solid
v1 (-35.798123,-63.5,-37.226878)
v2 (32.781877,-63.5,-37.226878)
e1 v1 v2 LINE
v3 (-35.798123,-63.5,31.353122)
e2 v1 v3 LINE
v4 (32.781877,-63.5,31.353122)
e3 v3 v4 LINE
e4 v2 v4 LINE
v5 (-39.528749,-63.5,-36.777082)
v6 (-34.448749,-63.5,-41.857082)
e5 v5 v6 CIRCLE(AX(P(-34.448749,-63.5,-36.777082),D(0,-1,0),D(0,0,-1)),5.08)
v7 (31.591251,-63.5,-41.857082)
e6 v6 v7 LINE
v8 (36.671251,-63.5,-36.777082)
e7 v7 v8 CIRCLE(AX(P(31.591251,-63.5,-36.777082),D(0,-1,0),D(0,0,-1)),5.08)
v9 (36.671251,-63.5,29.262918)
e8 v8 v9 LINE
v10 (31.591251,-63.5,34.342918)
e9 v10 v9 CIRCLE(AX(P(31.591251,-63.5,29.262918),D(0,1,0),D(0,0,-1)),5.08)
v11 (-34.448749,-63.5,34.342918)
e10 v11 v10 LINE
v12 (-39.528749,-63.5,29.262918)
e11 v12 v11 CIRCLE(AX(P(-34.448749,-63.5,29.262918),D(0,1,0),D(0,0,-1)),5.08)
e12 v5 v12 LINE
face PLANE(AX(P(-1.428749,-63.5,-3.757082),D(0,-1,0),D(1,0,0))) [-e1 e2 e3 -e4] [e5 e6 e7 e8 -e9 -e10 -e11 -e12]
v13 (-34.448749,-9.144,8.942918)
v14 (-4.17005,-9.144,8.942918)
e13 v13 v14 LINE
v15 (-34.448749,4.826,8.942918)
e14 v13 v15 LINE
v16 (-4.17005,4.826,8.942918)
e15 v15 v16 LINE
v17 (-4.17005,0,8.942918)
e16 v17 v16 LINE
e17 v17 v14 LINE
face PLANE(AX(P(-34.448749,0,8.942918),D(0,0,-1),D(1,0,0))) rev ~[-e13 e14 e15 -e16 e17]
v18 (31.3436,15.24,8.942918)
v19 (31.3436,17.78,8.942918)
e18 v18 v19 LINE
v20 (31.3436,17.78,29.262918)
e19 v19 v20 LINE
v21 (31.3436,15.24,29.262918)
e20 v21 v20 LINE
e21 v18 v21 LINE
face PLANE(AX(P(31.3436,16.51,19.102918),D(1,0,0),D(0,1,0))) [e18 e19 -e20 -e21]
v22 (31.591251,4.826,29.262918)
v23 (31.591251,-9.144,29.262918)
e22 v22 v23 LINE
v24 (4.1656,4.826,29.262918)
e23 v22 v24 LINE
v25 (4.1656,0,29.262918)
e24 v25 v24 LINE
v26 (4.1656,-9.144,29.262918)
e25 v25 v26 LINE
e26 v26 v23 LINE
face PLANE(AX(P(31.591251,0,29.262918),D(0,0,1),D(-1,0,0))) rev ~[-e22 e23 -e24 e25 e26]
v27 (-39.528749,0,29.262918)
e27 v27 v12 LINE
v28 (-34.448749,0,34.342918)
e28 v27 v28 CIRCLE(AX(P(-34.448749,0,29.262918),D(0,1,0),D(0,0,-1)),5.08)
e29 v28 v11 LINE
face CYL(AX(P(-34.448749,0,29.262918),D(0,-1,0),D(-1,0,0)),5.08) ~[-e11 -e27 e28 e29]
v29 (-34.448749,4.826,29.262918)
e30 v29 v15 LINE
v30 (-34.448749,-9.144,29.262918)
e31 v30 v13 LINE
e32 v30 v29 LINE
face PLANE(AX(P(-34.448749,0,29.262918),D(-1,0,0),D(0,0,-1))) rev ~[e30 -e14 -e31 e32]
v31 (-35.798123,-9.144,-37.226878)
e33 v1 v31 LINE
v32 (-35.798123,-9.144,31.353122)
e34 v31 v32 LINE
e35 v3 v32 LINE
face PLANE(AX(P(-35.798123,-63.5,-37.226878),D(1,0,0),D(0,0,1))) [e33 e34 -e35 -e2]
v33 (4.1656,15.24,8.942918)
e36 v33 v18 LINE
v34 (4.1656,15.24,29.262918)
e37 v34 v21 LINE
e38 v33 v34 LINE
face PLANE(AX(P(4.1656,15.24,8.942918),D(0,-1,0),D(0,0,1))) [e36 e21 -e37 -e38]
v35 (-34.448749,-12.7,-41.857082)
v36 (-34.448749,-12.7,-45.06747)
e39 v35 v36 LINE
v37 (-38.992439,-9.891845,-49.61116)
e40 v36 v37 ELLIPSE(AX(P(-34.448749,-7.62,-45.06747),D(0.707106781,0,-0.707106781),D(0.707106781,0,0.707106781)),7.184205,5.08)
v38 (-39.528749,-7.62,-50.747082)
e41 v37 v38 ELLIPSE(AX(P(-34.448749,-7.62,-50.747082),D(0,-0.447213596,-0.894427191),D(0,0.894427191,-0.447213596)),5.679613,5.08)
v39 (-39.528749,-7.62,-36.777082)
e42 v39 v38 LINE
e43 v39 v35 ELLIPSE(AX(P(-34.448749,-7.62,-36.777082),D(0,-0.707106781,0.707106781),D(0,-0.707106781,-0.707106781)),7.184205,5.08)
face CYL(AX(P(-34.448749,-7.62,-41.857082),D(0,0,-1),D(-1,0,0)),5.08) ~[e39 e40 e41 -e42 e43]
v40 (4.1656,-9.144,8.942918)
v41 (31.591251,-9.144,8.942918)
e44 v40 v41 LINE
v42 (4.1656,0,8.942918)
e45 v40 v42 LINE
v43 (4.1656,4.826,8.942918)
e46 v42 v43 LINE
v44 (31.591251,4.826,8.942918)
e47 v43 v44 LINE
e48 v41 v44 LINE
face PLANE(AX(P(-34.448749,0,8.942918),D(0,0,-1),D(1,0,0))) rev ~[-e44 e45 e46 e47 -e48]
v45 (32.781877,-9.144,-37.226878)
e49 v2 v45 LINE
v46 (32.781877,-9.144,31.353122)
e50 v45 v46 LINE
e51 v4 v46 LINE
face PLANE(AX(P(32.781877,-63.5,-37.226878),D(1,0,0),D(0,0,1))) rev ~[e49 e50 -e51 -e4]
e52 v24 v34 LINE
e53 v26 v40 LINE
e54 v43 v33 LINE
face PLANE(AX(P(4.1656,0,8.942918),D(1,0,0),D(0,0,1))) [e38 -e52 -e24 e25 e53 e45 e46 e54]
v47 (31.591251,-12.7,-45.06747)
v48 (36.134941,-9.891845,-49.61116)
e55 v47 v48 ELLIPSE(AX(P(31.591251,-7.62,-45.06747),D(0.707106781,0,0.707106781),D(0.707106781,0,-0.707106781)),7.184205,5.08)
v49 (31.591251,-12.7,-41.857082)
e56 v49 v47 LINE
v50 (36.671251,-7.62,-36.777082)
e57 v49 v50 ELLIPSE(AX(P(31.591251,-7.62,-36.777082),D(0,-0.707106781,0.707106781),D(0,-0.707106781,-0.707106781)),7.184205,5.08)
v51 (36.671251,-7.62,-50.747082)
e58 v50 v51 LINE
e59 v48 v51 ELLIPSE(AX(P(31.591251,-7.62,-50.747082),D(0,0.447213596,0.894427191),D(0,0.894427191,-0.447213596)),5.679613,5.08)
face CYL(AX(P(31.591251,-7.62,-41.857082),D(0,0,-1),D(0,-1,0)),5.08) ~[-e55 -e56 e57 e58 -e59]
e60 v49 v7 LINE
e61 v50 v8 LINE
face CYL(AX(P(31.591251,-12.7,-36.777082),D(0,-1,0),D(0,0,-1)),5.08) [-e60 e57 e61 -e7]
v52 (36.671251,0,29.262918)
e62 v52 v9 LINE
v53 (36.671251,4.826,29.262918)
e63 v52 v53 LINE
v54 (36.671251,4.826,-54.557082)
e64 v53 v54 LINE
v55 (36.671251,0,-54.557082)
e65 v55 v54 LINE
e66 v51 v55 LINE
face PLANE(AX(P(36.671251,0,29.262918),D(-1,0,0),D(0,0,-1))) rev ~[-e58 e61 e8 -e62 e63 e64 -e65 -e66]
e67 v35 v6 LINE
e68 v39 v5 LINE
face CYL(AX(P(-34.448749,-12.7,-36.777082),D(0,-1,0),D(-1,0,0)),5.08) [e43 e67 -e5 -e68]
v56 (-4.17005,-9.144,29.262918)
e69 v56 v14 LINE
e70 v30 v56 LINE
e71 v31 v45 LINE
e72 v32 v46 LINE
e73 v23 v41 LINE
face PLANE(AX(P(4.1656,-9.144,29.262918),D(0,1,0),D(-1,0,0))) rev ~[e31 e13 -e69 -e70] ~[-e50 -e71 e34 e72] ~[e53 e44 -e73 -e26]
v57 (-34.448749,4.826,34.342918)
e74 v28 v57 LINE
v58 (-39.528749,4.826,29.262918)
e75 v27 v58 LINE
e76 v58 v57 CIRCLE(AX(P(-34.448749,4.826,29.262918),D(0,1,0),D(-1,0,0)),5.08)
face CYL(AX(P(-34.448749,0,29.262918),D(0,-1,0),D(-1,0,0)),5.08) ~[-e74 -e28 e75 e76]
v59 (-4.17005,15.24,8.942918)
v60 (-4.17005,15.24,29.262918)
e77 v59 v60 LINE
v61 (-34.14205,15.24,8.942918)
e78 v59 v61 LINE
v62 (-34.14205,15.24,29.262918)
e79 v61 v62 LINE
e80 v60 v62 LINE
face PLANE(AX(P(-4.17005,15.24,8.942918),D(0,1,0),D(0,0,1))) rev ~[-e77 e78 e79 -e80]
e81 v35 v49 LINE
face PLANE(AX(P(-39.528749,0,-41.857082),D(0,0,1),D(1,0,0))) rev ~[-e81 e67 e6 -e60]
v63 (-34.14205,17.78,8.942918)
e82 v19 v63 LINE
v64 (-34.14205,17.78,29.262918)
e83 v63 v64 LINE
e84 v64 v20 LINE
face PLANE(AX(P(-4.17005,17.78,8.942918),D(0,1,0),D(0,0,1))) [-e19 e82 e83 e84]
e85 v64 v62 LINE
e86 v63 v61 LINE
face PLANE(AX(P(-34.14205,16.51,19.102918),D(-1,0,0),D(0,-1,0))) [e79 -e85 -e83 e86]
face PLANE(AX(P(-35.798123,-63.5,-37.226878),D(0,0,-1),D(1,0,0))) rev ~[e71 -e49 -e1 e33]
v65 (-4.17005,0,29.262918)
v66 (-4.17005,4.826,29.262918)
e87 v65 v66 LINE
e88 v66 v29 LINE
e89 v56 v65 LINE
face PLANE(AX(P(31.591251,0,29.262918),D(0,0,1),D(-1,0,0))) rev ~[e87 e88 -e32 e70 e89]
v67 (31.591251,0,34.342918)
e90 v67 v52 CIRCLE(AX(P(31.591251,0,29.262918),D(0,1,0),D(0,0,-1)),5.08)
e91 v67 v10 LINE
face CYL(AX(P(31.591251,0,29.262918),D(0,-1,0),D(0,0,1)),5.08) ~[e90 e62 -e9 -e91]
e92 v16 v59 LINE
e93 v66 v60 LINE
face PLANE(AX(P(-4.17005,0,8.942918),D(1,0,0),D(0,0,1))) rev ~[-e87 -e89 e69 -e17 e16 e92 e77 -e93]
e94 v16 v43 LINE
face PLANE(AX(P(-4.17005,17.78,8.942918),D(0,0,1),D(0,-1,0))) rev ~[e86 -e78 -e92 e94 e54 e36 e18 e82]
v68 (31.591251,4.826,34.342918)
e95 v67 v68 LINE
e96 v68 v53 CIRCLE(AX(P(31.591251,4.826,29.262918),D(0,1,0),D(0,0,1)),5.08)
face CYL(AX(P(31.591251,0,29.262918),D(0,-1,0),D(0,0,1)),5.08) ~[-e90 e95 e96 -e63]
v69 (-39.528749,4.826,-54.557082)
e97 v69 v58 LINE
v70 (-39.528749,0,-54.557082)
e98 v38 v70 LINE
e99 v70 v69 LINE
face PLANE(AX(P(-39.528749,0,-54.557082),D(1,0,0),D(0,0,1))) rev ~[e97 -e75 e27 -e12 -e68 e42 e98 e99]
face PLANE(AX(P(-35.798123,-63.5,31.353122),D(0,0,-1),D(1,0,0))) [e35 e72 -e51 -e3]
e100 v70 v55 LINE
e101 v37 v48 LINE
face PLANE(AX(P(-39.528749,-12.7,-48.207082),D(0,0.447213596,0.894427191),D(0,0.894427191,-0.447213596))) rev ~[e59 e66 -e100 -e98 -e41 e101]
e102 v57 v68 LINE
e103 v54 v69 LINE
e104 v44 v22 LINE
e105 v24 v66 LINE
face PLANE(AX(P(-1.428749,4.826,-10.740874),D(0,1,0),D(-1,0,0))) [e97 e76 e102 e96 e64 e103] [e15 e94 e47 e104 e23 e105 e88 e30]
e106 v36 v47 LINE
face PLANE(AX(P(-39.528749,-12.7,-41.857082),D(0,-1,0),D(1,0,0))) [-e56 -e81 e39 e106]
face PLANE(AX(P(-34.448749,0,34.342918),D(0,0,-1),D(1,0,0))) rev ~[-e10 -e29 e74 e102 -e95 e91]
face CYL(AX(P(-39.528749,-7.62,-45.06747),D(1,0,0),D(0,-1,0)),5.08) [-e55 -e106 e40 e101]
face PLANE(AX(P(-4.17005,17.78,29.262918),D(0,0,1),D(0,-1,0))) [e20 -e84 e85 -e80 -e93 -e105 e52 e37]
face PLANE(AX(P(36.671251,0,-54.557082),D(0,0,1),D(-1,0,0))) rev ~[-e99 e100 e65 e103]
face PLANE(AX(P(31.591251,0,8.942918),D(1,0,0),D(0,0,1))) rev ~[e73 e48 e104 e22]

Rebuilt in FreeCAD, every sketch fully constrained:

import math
import FreeCAD as App
import Part
import Sketcher

V = App.Vector
Q = App.Units.Quantity


def edges_at(feature, points):
    """Names of the edges that pass closest to the given points."""
    edges = feature.Shape.Edges
    near = lambda p: min(range(len(edges)), key=lambda i: edges[i].distToShape(Part.Vertex(*p))[0])
    return sorted({f"Edge{near(p) + 1}" for p in points})


def add_polygon(sketch, points):
    """Adds a closed chain of lines whose ends are joined by coincident constraints."""
    first, n = sketch.GeometryCount, len(points)
    for a, b in zip(points, points[1:] + points[:1]):
        sketch.addGeometry(Part.LineSegment(App.Vector(*a, 0), App.Vector(*b, 0)), False)
    for i in range(n):
        sketch.addConstraint(Sketcher.Constraint("Coincident", first + i, 2, first + (i + 1) % n, 1))

doc = App.newDocument("Part")
body = doc.addObject("PartDesign::Body", "Body")

# Sketch on XZ plane
sketch1 = body.newObject("Sketcher::SketchObject", "Sketch")
sketch1.AttachmentSupport = (doc.getObject("XZ_Plane"), [""])
sketch1.MapMode = "FlatFace"
add_polygon(sketch1, [(-40, 34), (-40, -42), (37, -42), (37, 34)])  # lines 0-3
sketch1.addConstraint(Sketcher.Constraint("Vertical", 0))
sketch1.addConstraint(Sketcher.Constraint("Horizontal", 1))
sketch1.addConstraint(Sketcher.Constraint("Vertical", 2))
sketch1.addConstraint(Sketcher.Constraint("Horizontal", 3))
sketch1.addConstraint(Sketcher.Constraint("Equal", 3, 0))
sketch1.addConstraint(Sketcher.Constraint("DistanceX", 1, 1, 1, 2, Q("3 in")))
sketch1.addConstraint(Sketcher.Constraint("DistanceX", 0, 2, -1, 1, 39.528749))
sketch1.addConstraint(Sketcher.Constraint("DistanceY", 0, 2, -1, 1, 41.857082))
pad1 = body.newObject("PartDesign::Pad", "Pad")
pad1.Profile = sketch1
pad1.Length = Q("2.5 in")

# Sketch on XZ plane
sketch2 = body.newObject("Sketcher::SketchObject", "Sketch001")
sketch2.AttachmentSupport = (doc.getObject("XZ_Plane"), [""])
sketch2.MapMode = "FlatFace"
sketch2.AttachmentOffset = App.Placement(V(0, 0, 2.5 * 25.4), App.Rotation())
add_polygon(sketch2, [(-36, 31), (-36, -37), (33, -37), (33, 31)])  # lines 0-3
sketch2.addConstraint(Sketcher.Constraint("Vertical", 0))
sketch2.addConstraint(Sketcher.Constraint("Horizontal", 1))
sketch2.addConstraint(Sketcher.Constraint("Vertical", 2))
sketch2.addConstraint(Sketcher.Constraint("Horizontal", 3))
sketch2.addConstraint(Sketcher.Constraint("Equal", 3, 0))
sketch2.addConstraint(Sketcher.Constraint("DistanceX", 1, 1, 1, 2, Q("2.7 in")))
sketch2.addConstraint(Sketcher.Constraint("DistanceY", -1, 1, 2, 2, Q("1.2343749 in")))
sketch2.addConstraint(Sketcher.Constraint("DistanceX", 0, 2, -1, 1, 35.798123))
pocket1 = body.newObject("PartDesign::Pocket", "Pocket")
pocket1.Profile = sketch2
pocket1.Length = Q("2.14 in")

# Sketch on XY plane
sketch3 = body.newObject("Sketcher::SketchObject", "Sketch002")
sketch3.AttachmentSupport = (doc.getObject("XY_Plane"), [""])
sketch3.MapMode = "FlatFace"
sketch3.AttachmentOffset = App.Placement(V(0, 0, -41.857082), App.Rotation())
add_polygon(sketch3, [(-40, -13), (-40, 0), (37, 0), (37, -13)])  # lines 0-3
sketch3.addConstraint(Sketcher.Constraint("Vertical", 0))
sketch3.addConstraint(Sketcher.Constraint("Horizontal", 1))
sketch3.addConstraint(Sketcher.Constraint("Vertical", 2))
sketch3.addConstraint(Sketcher.Constraint("Horizontal", 3))
sketch3.addConstraint(Sketcher.Constraint("PointOnObject", 0, 2, -1))
sketch3.addConstraint(Sketcher.Constraint("DistanceX", 1, 1, 1, 2, Q("3 in")))
sketch3.addConstraint(Sketcher.Constraint("DistanceY", 0, 1, 0, 2, Q("0.5 in")))
sketch3.addConstraint(Sketcher.Constraint("DistanceX", 0, 2, -1, 1, 39.528749))
pad2 = body.newObject("PartDesign::Pad", "Pad001")
pad2.Profile = sketch3
pad2.Length = Q("0.5 in")
pad2.Reversed = True

# Sketch on YZ plane
sketch4 = body.newObject("Sketcher::SketchObject", "Sketch003")
sketch4.AttachmentSupport = (doc.getObject("YZ_Plane"), [""])
sketch4.MapMode = "FlatFace"
sketch4.AttachmentOffset = App.Placement(V(0, 0, -39.528749), App.Rotation())
add_polygon(sketch4, [(-13, -48), (0, -55), (-13, -55)])  # lines 0-2
sketch4.addConstraint(Sketcher.Constraint("Horizontal", 1))
sketch4.addConstraint(Sketcher.Constraint("Vertical", 2))
sketch4.addConstraint(Sketcher.Constraint("PointOnObject", 0, 2, -2))
sketch4.addConstraint(Sketcher.Constraint("DistanceX", 1, 2, 1, 1, Q("0.5 in")))
sketch4.addConstraint(Sketcher.Constraint("DistanceY", 2, 1, 2, 2, Q("0.25 in")))
sketch4.addConstraint(Sketcher.Constraint("DistanceY", 0, 2, -1, 1, 54.557082))
pocket2 = body.newObject("PartDesign::Pocket", "Pocket001")
pocket2.Profile = sketch4
pocket2.Length = Q("3.22 in")
pocket2.Reversed = True
doc.recompute()

fillet = body.newObject("PartDesign::Fillet", "Fillet")
fillet.Base = (pocket2, edges_at(pocket2, [
    (-39.529, -38.1, -41.857),
    (36.671, -38.1, -41.857),
    (-1.429, -12.7, -48.207),
    (-39.529, -12.7, -45.032),
    (36.671, -12.7, -45.032),
    (36.671, -31.75, 34.343),
    (-39.529, -31.75, 34.343),
]))
fillet.Radius = Q("0.2 in")

# Sketch on XZ plane
sketch5 = body.newObject("Sketcher::SketchObject", "Sketch004")
sketch5.AttachmentSupport = (doc.getObject("XZ_Plane"), [""])
sketch5.MapMode = "FlatFace"
add_polygon(sketch5, [(32, 29), (32, 9), (-34, 9), (-34, 29)])  # lines 0-3
sketch5.addConstraint(Sketcher.Constraint("Vertical", 0))
sketch5.addConstraint(Sketcher.Constraint("Horizontal", 1))
sketch5.addConstraint(Sketcher.Constraint("Vertical", 2))
sketch5.addConstraint(Sketcher.Constraint("Horizontal", 3))
sketch5.addConstraint(Sketcher.Constraint("DistanceX", 1, 2, 1, 1, Q("2.6 in")))
sketch5.addConstraint(Sketcher.Constraint("DistanceY", 0, 2, 0, 1, Q("0.8 in")))
sketch5.addConstraint(Sketcher.Constraint("DistanceX", -1, 1, 0, 2, 31.591251))
sketch5.addConstraint(Sketcher.Constraint("DistanceY", -1, 1, 0, 2, 8.942918))
pocket3 = body.newObject("PartDesign::Pocket", "Pocket002")
pocket3.Profile = sketch5
pocket3.Length = Q("1 in")
pocket3.Reversed = True

# Sketch on XY plane
sketch6 = body.newObject("Sketcher::SketchObject", "Sketch005")
sketch6.AttachmentSupport = (doc.getObject("XY_Plane"), [""])
sketch6.MapMode = "FlatFace"
sketch6.AttachmentOffset = App.Placement(V(0, 0, 29.262918), App.Rotation())
add_polygon(sketch6, [(4, -9), (-4, -9), (-4, 0), (4, 0)])  # lines 0-3
sketch6.addConstraint(Sketcher.Constraint("Horizontal", 0))
sketch6.addConstraint(Sketcher.Constraint("Vertical", 1))
sketch6.addConstraint(Sketcher.Constraint("Horizontal", 2))
sketch6.addConstraint(Sketcher.Constraint("Vertical", 3))
sketch6.addConstraint(Sketcher.Constraint("PointOnObject", 1, 2, -1))
sketch6.addConstraint(Sketcher.Constraint("DistanceY", 1, 1, 1, 2, Q("0.36 in")))
sketch6.addConstraint(Sketcher.Constraint("DistanceX", -1, 1, 2, 2, Q("0.164 in")))
sketch6.addConstraint(Sketcher.Constraint("DistanceX", 0, 2, 0, 1, 8.33565))
pad3 = body.newObject("PartDesign::Pad", "Pad002")
pad3.Profile = sketch6
pad3.Length = Q("1 in")
pad3.Reversed = True

# Sketch on XZ plane
sketch7 = body.newObject("Sketcher::SketchObject", "Sketch006")
sketch7.AttachmentSupport = (doc.getObject("XZ_Plane"), [""])
sketch7.MapMode = "FlatFace"
add_polygon(sketch7, [(4, 29), (4, 9), (-4, 9), (-4, 29)])  # lines 0-3
sketch7.addConstraint(Sketcher.Constraint("Vertical", 0))
sketch7.addConstraint(Sketcher.Constraint("Horizontal", 1))
sketch7.addConstraint(Sketcher.Constraint("Vertical", 2))
sketch7.addConstraint(Sketcher.Constraint("Horizontal", 3))
sketch7.addConstraint(Sketcher.Constraint("DistanceY", 0, 2, 0, 1, Q("0.8 in")))
sketch7.addConstraint(Sketcher.Constraint("DistanceX", -1, 1, 0, 2, Q("0.164 in")))
sketch7.addConstraint(Sketcher.Constraint("DistanceX", 1, 2, 1, 1, 8.33565))
sketch7.addConstraint(Sketcher.Constraint("DistanceY", -1, 1, 0, 2, 8.942918))
pad4 = body.newObject("PartDesign::Pad", "Pad003")
pad4.Profile = sketch7
pad4.Length = Q("0.7 in")
pad4.Reversed = True

# Sketch on YZ plane
sketch8 = body.newObject("Sketcher::SketchObject", "Sketch007")
sketch8.AttachmentSupport = (doc.getObject("YZ_Plane"), [""])
sketch8.MapMode = "FlatFace"
sketch8.AttachmentOffset = App.Placement(V(0, 0, 0.164 * 25.4), App.Rotation())
add_polygon(sketch8, [(15.2, 29.3), (15.2, 8.9), (17.8, 8.9), (17.8, 29.3)])  # lines 0-3
sketch8.addConstraint(Sketcher.Constraint("Vertical", 0))
sketch8.addConstraint(Sketcher.Constraint("Horizontal", 1))
sketch8.addConstraint(Sketcher.Constraint("Vertical", 2))
sketch8.addConstraint(Sketcher.Constraint("Horizontal", 3))
sketch8.addConstraint(Sketcher.Constraint("DistanceX", 1, 1, 1, 2, Q("0.1 in")))
sketch8.addConstraint(Sketcher.Constraint("DistanceY", 0, 2, 0, 1, Q("0.8 in")))
sketch8.addConstraint(Sketcher.Constraint("DistanceX", -1, 1, 0, 2, Q("0.6 in")))
sketch8.addConstraint(Sketcher.Constraint("DistanceY", -1, 1, 0, 2, 8.942918))
pad5 = body.newObject("PartDesign::Pad", "Pad004")
pad5.Profile = sketch8
pad5.Length = Q("1.07 in")

# Sketch on YZ plane
sketch9 = body.newObject("Sketcher::SketchObject", "Sketch008")
sketch9.AttachmentSupport = (doc.getObject("YZ_Plane"), [""])
sketch9.MapMode = "FlatFace"
sketch9.AttachmentOffset = App.Placement(V(0, 0, -4.17005), App.Rotation())
add_polygon(sketch9, [(17.8, 29.3), (17.8, 8.9), (15.2, 8.9), (15.2, 29.3)])  # lines 0-3
sketch9.addConstraint(Sketcher.Constraint("Vertical", 0))
sketch9.addConstraint(Sketcher.Constraint("Horizontal", 1))
sketch9.addConstraint(Sketcher.Constraint("Vertical", 2))
sketch9.addConstraint(Sketcher.Constraint("Horizontal", 3))
sketch9.addConstraint(Sketcher.Constraint("DistanceX", 1, 2, 1, 1, Q("0.1 in")))
sketch9.addConstraint(Sketcher.Constraint("DistanceY", 0, 2, 0, 1, Q("0.8 in")))
sketch9.addConstraint(Sketcher.Constraint("DistanceX", -1, 1, 0, 2, Q("0.7 in")))
sketch9.addConstraint(Sketcher.Constraint("DistanceY", -1, 1, 0, 2, 8.942918))
pad6 = body.newObject("PartDesign::Pad", "Pad005")
pad6.Profile = sketch9
pad6.Length = Q("1.18 in")
pad6.Reversed = True

# Sketch on XZ plane
sketch10 = body.newObject("Sketcher::SketchObject", "Sketch009")
sketch10.AttachmentSupport = (doc.getObject("XZ_Plane"), [""])
sketch10.MapMode = "FlatFace"
sketch10.addGeometry(Part.ArcOfCircle(Part.Circle(V(-34, 29, 0), V(0, 0, 1), 5), math.radians(90), math.radians(180)), False)  # 0
sketch10.addGeometry(Part.LineSegment(V(-34, 34, 0), V(32, 34, 0)), False)  # 1
sketch10.addGeometry(Part.ArcOfCircle(Part.Circle(V(32, 29, 0), V(0, 0, 1), 5), math.radians(0), math.radians(90)), False)  # 2
sketch10.addGeometry(Part.LineSegment(V(37, 29, 0), V(37, -55, 0)), False)  # 3
sketch10.addGeometry(Part.LineSegment(V(37, -55, 0), V(-40, -55, 0)), False)  # 4
sketch10.addGeometry(Part.LineSegment(V(-40, -55, 0), V(-40, 29, 0)), False)  # 5
add_polygon(sketch10, [(32, 29), (-34, 29), (-34, 9), (32, 9)])  # lines 6-9
sketch10.addConstraint(Sketcher.Constraint("Tangent", 0, 1, 1, 1))
sketch10.addConstraint(Sketcher.Constraint("Tangent", 1, 2, 2, 2))
sketch10.addConstraint(Sketcher.Constraint("Tangent", 2, 1, 3, 1))
sketch10.addConstraint(Sketcher.Constraint("Coincident", 3, 2, 4, 1))
sketch10.addConstraint(Sketcher.Constraint("Coincident", 4, 2, 5, 1))
sketch10.addConstraint(Sketcher.Constraint("Tangent", 5, 2, 0, 2))
sketch10.addConstraint(Sketcher.Constraint("Horizontal", 1))
sketch10.addConstraint(Sketcher.Constraint("Vertical", 3))
sketch10.addConstraint(Sketcher.Constraint("Horizontal", 4))
sketch10.addConstraint(Sketcher.Constraint("Vertical", 5))
sketch10.addConstraint(Sketcher.Constraint("Horizontal", 6))
sketch10.addConstraint(Sketcher.Constraint("Vertical", 7))
sketch10.addConstraint(Sketcher.Constraint("Horizontal", 8))
sketch10.addConstraint(Sketcher.Constraint("Vertical", 9))
sketch10.addConstraint(Sketcher.Constraint("Coincident", 6, 2, 0, 3))
sketch10.addConstraint(Sketcher.Constraint("Coincident", 9, 2, 2, 3))
sketch10.addConstraint(Sketcher.Constraint("Radius", 0, Q("0.2 in")))
sketch10.addConstraint(Sketcher.Constraint("DistanceX", 4, 2, 4, 1, Q("3 in")))
sketch10.addConstraint(Sketcher.Constraint("DistanceY", 3, 2, 3, 1, Q("3.3 in")))
sketch10.addConstraint(Sketcher.Constraint("DistanceY", 7, 2, 7, 1, Q("0.8 in")))
sketch10.addConstraint(Sketcher.Constraint("DistanceX", 0, 3, -1, 1, 34.448749))
sketch10.addConstraint(Sketcher.Constraint("DistanceY", -1, 1, 0, 3, 29.262918))
pad7 = body.newObject("PartDesign::Pad", "Pad006")
pad7.Profile = sketch10
pad7.Length = Q("0.19 in")
pad7.Reversed = True

doc.recompute()
